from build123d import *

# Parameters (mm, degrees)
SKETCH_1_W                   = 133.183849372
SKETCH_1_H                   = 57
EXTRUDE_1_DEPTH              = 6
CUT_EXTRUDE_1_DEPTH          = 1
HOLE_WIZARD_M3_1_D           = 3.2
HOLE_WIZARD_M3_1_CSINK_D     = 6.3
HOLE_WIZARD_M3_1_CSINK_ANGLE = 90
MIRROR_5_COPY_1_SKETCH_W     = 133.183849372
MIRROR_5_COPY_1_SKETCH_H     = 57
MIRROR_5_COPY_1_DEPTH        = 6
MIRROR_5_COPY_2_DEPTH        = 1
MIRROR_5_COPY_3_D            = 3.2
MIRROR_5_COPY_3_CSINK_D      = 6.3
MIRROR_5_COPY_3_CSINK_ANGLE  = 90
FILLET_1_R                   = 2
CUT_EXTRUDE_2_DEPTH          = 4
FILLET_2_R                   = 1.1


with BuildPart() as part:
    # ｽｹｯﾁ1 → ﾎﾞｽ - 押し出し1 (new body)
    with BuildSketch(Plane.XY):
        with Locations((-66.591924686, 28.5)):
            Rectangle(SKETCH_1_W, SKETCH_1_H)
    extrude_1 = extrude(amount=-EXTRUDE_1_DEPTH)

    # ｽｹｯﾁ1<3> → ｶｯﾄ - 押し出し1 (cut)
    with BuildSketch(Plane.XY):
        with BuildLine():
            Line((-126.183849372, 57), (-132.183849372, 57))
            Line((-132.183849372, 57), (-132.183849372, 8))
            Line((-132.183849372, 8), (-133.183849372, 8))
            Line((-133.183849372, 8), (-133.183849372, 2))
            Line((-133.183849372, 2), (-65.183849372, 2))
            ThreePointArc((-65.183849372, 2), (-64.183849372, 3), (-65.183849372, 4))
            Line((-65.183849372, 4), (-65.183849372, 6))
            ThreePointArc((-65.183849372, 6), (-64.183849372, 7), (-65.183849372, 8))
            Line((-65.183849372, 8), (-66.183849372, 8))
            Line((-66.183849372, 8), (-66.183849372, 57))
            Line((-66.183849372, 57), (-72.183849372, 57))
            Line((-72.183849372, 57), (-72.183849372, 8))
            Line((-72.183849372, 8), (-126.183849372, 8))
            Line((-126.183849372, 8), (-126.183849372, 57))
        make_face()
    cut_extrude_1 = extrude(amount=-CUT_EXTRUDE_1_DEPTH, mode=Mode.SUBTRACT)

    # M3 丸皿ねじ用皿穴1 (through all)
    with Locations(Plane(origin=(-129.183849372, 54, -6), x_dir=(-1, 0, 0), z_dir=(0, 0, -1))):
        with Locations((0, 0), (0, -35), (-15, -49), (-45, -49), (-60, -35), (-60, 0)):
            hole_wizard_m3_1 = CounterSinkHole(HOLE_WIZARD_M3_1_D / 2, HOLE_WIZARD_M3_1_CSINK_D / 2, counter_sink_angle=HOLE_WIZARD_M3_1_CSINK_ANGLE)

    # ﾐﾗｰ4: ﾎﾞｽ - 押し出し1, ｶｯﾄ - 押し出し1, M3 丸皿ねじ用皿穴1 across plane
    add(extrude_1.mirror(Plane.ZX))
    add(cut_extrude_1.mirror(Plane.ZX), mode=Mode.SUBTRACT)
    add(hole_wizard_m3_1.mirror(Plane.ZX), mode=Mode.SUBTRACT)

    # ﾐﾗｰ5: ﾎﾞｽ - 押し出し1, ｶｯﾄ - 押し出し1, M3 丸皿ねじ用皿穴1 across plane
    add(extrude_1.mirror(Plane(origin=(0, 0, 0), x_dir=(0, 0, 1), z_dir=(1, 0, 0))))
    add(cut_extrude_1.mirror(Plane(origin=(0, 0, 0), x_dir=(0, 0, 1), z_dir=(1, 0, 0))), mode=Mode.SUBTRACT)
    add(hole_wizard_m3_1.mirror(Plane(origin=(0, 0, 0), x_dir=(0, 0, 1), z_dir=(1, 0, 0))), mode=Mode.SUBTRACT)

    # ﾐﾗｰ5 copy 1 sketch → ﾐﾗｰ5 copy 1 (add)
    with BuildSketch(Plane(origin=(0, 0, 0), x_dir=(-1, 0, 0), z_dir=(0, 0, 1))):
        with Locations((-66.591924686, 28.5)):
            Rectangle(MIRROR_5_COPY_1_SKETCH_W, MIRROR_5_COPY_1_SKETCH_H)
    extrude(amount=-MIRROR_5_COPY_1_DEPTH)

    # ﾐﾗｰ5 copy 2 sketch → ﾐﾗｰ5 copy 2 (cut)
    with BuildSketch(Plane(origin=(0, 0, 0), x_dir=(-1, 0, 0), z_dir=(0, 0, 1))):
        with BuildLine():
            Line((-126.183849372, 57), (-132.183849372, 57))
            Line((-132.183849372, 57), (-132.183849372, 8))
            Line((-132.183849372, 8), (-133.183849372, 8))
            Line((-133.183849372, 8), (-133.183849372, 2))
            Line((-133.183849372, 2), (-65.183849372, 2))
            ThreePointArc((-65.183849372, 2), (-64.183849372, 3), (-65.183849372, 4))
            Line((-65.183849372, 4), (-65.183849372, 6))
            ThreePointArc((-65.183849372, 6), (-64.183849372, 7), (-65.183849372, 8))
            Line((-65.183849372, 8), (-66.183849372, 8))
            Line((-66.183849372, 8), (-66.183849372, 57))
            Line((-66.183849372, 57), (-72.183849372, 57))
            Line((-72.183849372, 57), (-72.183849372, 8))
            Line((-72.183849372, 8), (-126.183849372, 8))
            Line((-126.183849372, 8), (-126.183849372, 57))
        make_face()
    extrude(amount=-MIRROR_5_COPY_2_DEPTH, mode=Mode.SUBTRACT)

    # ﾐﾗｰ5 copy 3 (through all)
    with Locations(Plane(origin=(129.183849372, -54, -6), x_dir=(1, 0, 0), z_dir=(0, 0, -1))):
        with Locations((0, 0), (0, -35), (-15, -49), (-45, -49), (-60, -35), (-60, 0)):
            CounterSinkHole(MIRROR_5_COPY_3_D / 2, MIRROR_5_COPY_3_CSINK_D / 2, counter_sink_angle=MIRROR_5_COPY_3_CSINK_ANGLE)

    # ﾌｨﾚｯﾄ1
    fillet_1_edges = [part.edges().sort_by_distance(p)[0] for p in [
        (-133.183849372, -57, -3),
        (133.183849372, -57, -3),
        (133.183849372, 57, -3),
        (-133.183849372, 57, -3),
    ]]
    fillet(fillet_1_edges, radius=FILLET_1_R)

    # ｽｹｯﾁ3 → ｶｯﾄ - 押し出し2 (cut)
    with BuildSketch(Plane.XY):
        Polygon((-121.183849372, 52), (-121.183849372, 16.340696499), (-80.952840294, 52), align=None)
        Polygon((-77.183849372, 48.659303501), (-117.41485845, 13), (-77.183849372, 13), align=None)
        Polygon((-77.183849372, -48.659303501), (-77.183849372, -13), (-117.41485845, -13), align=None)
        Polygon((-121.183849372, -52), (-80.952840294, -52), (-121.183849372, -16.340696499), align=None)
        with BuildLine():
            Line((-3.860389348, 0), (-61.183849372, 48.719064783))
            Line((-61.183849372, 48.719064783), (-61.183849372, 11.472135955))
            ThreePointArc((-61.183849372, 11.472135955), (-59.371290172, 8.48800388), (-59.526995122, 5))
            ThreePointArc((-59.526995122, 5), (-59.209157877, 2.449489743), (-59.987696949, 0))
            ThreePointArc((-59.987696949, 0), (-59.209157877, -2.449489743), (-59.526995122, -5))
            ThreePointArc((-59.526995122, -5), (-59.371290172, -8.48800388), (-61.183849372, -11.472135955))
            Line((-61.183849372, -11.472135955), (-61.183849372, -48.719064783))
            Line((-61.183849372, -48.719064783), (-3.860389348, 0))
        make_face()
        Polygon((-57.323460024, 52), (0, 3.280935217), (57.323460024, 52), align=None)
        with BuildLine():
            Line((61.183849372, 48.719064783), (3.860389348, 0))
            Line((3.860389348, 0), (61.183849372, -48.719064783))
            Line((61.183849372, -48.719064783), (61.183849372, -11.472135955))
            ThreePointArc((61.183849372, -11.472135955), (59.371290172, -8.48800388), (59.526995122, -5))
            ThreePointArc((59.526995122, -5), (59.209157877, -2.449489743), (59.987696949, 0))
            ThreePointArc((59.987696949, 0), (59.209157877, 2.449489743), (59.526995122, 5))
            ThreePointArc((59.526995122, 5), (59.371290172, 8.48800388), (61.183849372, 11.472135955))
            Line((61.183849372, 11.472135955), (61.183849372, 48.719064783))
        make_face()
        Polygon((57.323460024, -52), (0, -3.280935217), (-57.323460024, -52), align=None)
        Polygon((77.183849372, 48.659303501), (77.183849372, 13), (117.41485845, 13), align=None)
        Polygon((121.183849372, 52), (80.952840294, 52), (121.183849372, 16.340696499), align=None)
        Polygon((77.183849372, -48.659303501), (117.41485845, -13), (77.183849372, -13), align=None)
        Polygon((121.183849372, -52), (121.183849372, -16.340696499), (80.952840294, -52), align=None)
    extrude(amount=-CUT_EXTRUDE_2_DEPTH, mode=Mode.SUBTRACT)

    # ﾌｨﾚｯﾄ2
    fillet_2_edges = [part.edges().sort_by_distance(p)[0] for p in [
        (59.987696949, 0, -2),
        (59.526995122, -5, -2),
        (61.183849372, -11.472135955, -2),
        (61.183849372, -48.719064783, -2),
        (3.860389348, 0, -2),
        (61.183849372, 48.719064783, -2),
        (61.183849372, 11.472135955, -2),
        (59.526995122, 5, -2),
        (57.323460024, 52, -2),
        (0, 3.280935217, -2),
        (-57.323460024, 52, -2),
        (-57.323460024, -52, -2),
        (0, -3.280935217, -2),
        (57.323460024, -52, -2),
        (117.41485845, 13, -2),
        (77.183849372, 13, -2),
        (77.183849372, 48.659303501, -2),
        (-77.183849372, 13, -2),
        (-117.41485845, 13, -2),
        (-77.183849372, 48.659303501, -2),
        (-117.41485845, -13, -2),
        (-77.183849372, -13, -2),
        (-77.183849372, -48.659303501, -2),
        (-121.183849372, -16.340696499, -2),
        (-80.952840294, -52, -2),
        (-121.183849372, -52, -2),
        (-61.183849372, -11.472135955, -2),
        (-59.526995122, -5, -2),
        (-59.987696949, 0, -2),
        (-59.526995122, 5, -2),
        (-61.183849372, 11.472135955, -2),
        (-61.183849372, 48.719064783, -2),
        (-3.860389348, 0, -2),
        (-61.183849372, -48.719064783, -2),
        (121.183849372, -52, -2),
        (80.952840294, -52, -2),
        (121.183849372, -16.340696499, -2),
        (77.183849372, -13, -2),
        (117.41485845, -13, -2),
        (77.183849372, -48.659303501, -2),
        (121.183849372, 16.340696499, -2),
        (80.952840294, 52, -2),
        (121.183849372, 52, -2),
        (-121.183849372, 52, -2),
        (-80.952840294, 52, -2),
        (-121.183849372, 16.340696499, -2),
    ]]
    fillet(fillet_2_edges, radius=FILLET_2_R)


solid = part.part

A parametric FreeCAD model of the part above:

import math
import FreeCAD as App
import Part
import Sketcher

V = App.Vector


def edges_at(feature, points):
    """Names of the edges that pass closest to the given points."""
    edges = feature.Shape.Edges
    near = lambda p: min(range(len(edges)), key=lambda i: edges[i].distToShape(Part.Vertex(*p))[0])
    return sorted({f"Edge{near(p) + 1}" for p in points})

doc = App.newDocument("Part")
body = doc.addObject("PartDesign::Body", "Body")

sketch1 = body.newObject("Sketcher::SketchObject", "Sketch")
sketch1.AttachmentSupport = (doc.getObject("XY_Plane"), [""])
sketch1.MapMode = "FlatFace"
sketch1.addGeometry([
    Part.LineSegment(V(-133, 57, 0), V(-133, 0, 0)),
    Part.LineSegment(V(-133, 0, 0), V(0, 0, 0)),
    Part.LineSegment(V(0, 0, 0), V(0, 57, 0)),
    Part.LineSegment(V(0, 57, 0), V(-133, 57, 0)),
], False)
sketch1.addConstraint([
    Sketcher.Constraint("Coincident", 0, 2, 1, 1),
    Sketcher.Constraint("Coincident", 1, 2, 2, 1),
    Sketcher.Constraint("Coincident", 2, 2, 3, 1),
    Sketcher.Constraint("Coincident", 3, 2, 0, 1),
    Sketcher.Constraint("Vertical", 0),
    Sketcher.Constraint("Horizontal", 1),
    Sketcher.Constraint("Vertical", 2),
    Sketcher.Constraint("Horizontal", 3),
    Sketcher.Constraint("Coincident", 1, 2, -1, 1),
    Sketcher.Constraint("DistanceY", 0, 2, 0, 1, 57.0),
    Sketcher.Constraint("DistanceX", 1, 1, 1, 2, 133.183849),
])
pad1 = body.newObject("PartDesign::Pad", "Pad")
pad1.Profile = sketch1
pad1.Length = 6
pad1.Reversed = True

sketch2 = body.newObject("Sketcher::SketchObject", "Sketch001")
sketch2.AttachmentSupport = (doc.getObject("XY_Plane"), [""])
sketch2.MapMode = "FlatFace"
sketch2.addGeometry([
    Part.LineSegment(V(-126.2, 57, 0), V(-132.2, 57, 0)),
    Part.LineSegment(V(-132.2, 57, 0), V(-132.2, 8, 0)),
    Part.LineSegment(V(-132.2, 8, 0), V(-133.2, 8, 0)),
    Part.LineSegment(V(-133.2, 8, 0), V(-133.2, 2, 0)),
    Part.LineSegment(V(-133.2, 2, 0), V(-65.2, 2, 0)),
    Part.ArcOfCircle(Part.Circle(V(-65.2, 3, 0), V(0, 0, 1), 1), math.radians(-90), math.radians(90)),
    Part.LineSegment(V(-65.2, 4, 0), V(-65.2, 6, 0)),
    Part.ArcOfCircle(Part.Circle(V(-65.2, 7, 0), V(0, 0, 1), 1), math.radians(-90), math.radians(90)),
    Part.LineSegment(V(-65.2, 8, 0), V(-66.2, 8, 0)),
    Part.LineSegment(V(-66.2, 8, 0), V(-66.2, 57, 0)),
    Part.LineSegment(V(-66.2, 57, 0), V(-72.2, 57, 0)),
    Part.LineSegment(V(-72.2, 57, 0), V(-72.2, 8, 0)),
    Part.LineSegment(V(-72.2, 8, 0), V(-126.2, 8, 0)),
    Part.LineSegment(V(-126.2, 8, 0), V(-126.2, 57, 0)),
], False)
sketch2.addConstraint([
    Sketcher.Constraint("Coincident", 0, 2, 1, 1),
    Sketcher.Constraint("Coincident", 1, 2, 2, 1),
    Sketcher.Constraint("Coincident", 2, 2, 3, 1),
    Sketcher.Constraint("Coincident", 3, 2, 4, 1),
    Sketcher.Constraint("Tangent", 4, 2, 5, 1),
    Sketcher.Constraint("Coincident", 5, 2, 6, 1),
    Sketcher.Constraint("Coincident", 6, 2, 7, 1),
    Sketcher.Constraint("Tangent", 7, 2, 8, 1),
    Sketcher.Constraint("Coincident", 8, 2, 9, 1),
    Sketcher.Constraint("Coincident", 9, 2, 10, 1),
    Sketcher.Constraint("Coincident", 10, 2, 11, 1),
    Sketcher.Constraint("Coincident", 11, 2, 12, 1),
    Sketcher.Constraint("Coincident", 12, 2, 13, 1),
    Sketcher.Constraint("Coincident", 13, 2, 0, 1),
    Sketcher.Constraint("Horizontal", 0),
    Sketcher.Constraint("Vertical", 1),
    Sketcher.Constraint("Horizontal", 2),
    Sketcher.Constraint("Vertical", 3),
    Sketcher.Constraint("Horizontal", 4),
    Sketcher.Constraint("Vertical", 6),
    Sketcher.Constraint("Horizontal", 8),
    Sketcher.Constraint("Vertical", 9),
    Sketcher.Constraint("Horizontal", 10),
    Sketcher.Constraint("Vertical", 11),
    Sketcher.Constraint("Horizontal", 12),
    Sketcher.Constraint("Vertical", 13),
    Sketcher.Constraint("Equal", 5, 7),
    Sketcher.Constraint("Horizontal", 2, 2, 7, 2),
    Sketcher.Constraint("Horizontal", 0, 2, 9, 2),
    Sketcher.Constraint("Horizontal", 8, 2, 11, 2),
    Sketcher.Constraint("Vertical", 5, 3, 7, 3),
    Sketcher.Constraint("Vertical", 4, 2, 5, 2),
    Sketcher.Constraint("Equal", 2, 8),
    Sketcher.Constraint("Equal", 0, 10),
    Sketcher.Constraint("Equal", 10, 3),
    Sketcher.Constraint("Radius", 5, 1.0),
    Sketcher.Constraint("DistanceX", 0, 2, 0, 1, 6.0),
    Sketcher.Constraint("DistanceX", 2, 2, 2, 1, 1.0),
    Sketcher.Constraint("DistanceX", 4, 1, 4, 2, 68.0),
    Sketcher.Constraint("DistanceY", 1, 2, 1, 1, 49.0),
    Sketcher.Constraint("DistanceY", -1, 1, 5, 3, 3.0),
    Sketcher.Constraint("DistanceX", 5, 3, -1, 1, 65.183849),
])
pocket1 = body.newObject("PartDesign::Pocket", "Pocket")
pocket1.Profile = sketch2
pocket1.Length = 1

sketch3 = body.newObject("Sketcher::SketchObject", "Sketch002")
sketch3.AttachmentSupport = (doc.getObject("XY_Plane"), [""])
sketch3.MapMode = "FlatFace"
sketch3.AttachmentOffset = App.Placement(V(0, 0, -6), App.Rotation())
sketch3.addGeometry([
    Part.Circle(V(-129.2, 54, 0), V(0, 0, 1), 1.6),
    Part.Circle(V(-129.2, 19, 0), V(0, 0, 1), 1.6),
    Part.Circle(V(-114.2, 5, 0), V(0, 0, 1), 1.6),
    Part.Circle(V(-84.2, 5, 0), V(0, 0, 1), 1.6),
    Part.Circle(V(-69.2, 19, 0), V(0, 0, 1), 1.6),
    Part.Circle(V(-69.2, 54, 0), V(0, 0, 1), 1.6),
], False)
sketch3.addConstraint([
    Sketcher.Constraint("Equal", 0, 1),
    Sketcher.Constraint("Equal", 1, 2),
    Sketcher.Constraint("Equal", 2, 3),
    Sketcher.Constraint("Equal", 3, 4),
    Sketcher.Constraint("Equal", 4, 5),
    Sketcher.Constraint("Horizontal", 2, 3, 3, 3),
    Sketcher.Constraint("Horizontal", 1, 3, 4, 3),
    Sketcher.Constraint("Horizontal", 0, 3, 5, 3),
    Sketcher.Constraint("Vertical", 0, 3, 1, 3),
    Sketcher.Constraint("Vertical", 4, 3, 5, 3),
    Sketcher.Constraint("Diameter", 0, 3.2),
    Sketcher.Constraint("DistanceY", -1, 1, 0, 3, 54.0),
    Sketcher.Constraint("DistanceY", -1, 1, 1, 3, 19.0),
    Sketcher.Constraint("DistanceY", -1, 1, 2, 3, 5.0),
    Sketcher.Constraint("DistanceX", 1, 3, 2, 3, 15.0),
    Sketcher.Constraint("DistanceX", 2, 3, 3, 3, 30.0),
    Sketcher.Constraint("DistanceX", 3, 3, 4, 3, 15.0),
    Sketcher.Constraint("DistanceX", 0, 3, -1, 1, 129.183849),
])
doc.recompute()
hole = body.newObject("PartDesign::Hole", "Hole")
hole.Profile = sketch3
hole.ThreadType = "None"
hole.Diameter = 3.2
hole.DepthType = "ThroughAll"
hole.HoleCutType = "Countersink"
hole.HoleCutDiameter = 6.3
hole.HoleCutCountersinkAngle = 90
hole.Reversed = True
doc.recompute()

mirrored = body.newObject("PartDesign::Mirrored", "Mirrored")
mirrored.Originals = [pad1, pocket1, hole]
mirrored.MirrorPlane = (doc.getObject("XZ_Plane"), [""])
body.Tip = mirrored
doc.recompute()

mirrored2 = body.newObject("PartDesign::Mirrored", "Mirrored001")
mirrored2.Originals = [pad1, pocket1, hole]
mirrored2.MirrorPlane = (doc.getObject("YZ_Plane"), [""])
body.Tip = mirrored2

sketch4 = body.newObject("Sketcher::SketchObject", "Sketch003")
sketch4.AttachmentSupport = (doc.getObject("XY_Plane"), [""])
sketch4.MapMode = "FlatFace"
sketch4.addGeometry([
    Part.LineSegment(V(133, -57, 0), V(133, 0, 0)),
    Part.LineSegment(V(133, 0, 0), V(0, 0, 0)),
    Part.LineSegment(V(0, 0, 0), V(0, -57, 0)),
    Part.LineSegment(V(0, -57, 0), V(133, -57, 0)),
], False)
sketch4.addConstraint([
    Sketcher.Constraint("Coincident", 0, 2, 1, 1),
    Sketcher.Constraint("Coincident", 1, 2, 2, 1),
    Sketcher.Constraint("Coincident", 2, 2, 3, 1),
    Sketcher.Constraint("Coincident", 3, 2, 0, 1),
    Sketcher.Constraint("Vertical", 0),
    Sketcher.Constraint("Horizontal", 1),
    Sketcher.Constraint("Vertical", 2),
    Sketcher.Constraint("Horizontal", 3),
    Sketcher.Constraint("Coincident", 1, 2, -1, 1),
    Sketcher.Constraint("DistanceY", 0, 1, 0, 2, 57.0),
    Sketcher.Constraint("DistanceX", 1, 2, 1, 1, 133.183849),
])
pad2 = body.newObject("PartDesign::Pad", "Pad001")
pad2.Profile = sketch4
pad2.Length = 6
pad2.Reversed = True

sketch5 = body.newObject("Sketcher::SketchObject", "Sketch004")
sketch5.AttachmentSupport = (doc.getObject("XY_Plane"), [""])
sketch5.MapMode = "FlatFace"
sketch5.addGeometry([
    Part.LineSegment(V(126.2, -57, 0), V(132.2, -57, 0)),
    Part.LineSegment(V(132.2, -57, 0), V(132.2, -8, 0)),
    Part.LineSegment(V(132.2, -8, 0), V(133.2, -8, 0)),
    Part.LineSegment(V(133.2, -8, 0), V(133.2, -2, 0)),
    Part.LineSegment(V(133.2, -2, 0), V(65.2, -2, 0)),
    Part.ArcOfCircle(Part.Circle(V(65.2, -3, 0), V(0, 0, 1), 1), math.radians(90), math.radians(270)),
    Part.LineSegment(V(65.2, -4, 0), V(65.2, -6, 0)),
    Part.ArcOfCircle(Part.Circle(V(65.2, -7, 0), V(0, 0, 1), 1), math.radians(90), math.radians(270)),
    Part.LineSegment(V(65.2, -8, 0), V(66.2, -8, 0)),
    Part.LineSegment(V(66.2, -8, 0), V(66.2, -57, 0)),
    Part.LineSegment(V(66.2, -57, 0), V(72.2, -57, 0)),
    Part.LineSegment(V(72.2, -57, 0), V(72.2, -8, 0)),
    Part.LineSegment(V(72.2, -8, 0), V(126.2, -8, 0)),
    Part.LineSegment(V(126.2, -8, 0), V(126.2, -57, 0)),
], False)
sketch5.addConstraint([
    Sketcher.Constraint("Coincident", 0, 2, 1, 1),
    Sketcher.Constraint("Coincident", 1, 2, 2, 1),
    Sketcher.Constraint("Coincident", 2, 2, 3, 1),
    Sketcher.Constraint("Coincident", 3, 2, 4, 1),
    Sketcher.Constraint("Tangent", 4, 2, 5, 1),
    Sketcher.Constraint("Coincident", 5, 2, 6, 1),
    Sketcher.Constraint("Coincident", 6, 2, 7, 1),
    Sketcher.Constraint("Tangent", 7, 2, 8, 1),
    Sketcher.Constraint("Coincident", 8, 2, 9, 1),
    Sketcher.Constraint("Coincident", 9, 2, 10, 1),
    Sketcher.Constraint("Coincident", 10, 2, 11, 1),
    Sketcher.Constraint("Coincident", 11, 2, 12, 1),
    Sketcher.Constraint("Coincident", 12, 2, 13, 1),
    Sketcher.Constraint("Coincident", 13, 2, 0, 1),
    Sketcher.Constraint("Horizontal", 0),
    Sketcher.Constraint("Vertical", 1),
    Sketcher.Constraint("Horizontal", 2),
    Sketcher.Constraint("Vertical", 3),
    Sketcher.Constraint("Horizontal", 4),
    Sketcher.Constraint("Vertical", 6),
    Sketcher.Constraint("Horizontal", 8),
    Sketcher.Constraint("Vertical", 9),
    Sketcher.Constraint("Horizontal", 10),
    Sketcher.Constraint("Vertical", 11),
    Sketcher.Constraint("Horizontal", 12),
    Sketcher.Constraint("Vertical", 13),
    Sketcher.Constraint("Equal", 5, 7),
    Sketcher.Constraint("Horizontal", 2, 2, 7, 2),
    Sketcher.Constraint("Horizontal", 0, 2, 9, 2),
    Sketcher.Constraint("Horizontal", 8, 2, 11, 2),
    Sketcher.Constraint("Vertical", 5, 3, 7, 3),
    Sketcher.Constraint("Vertical", 4, 2, 5, 2),
    Sketcher.Constraint("Equal", 2, 8),
    Sketcher.Constraint("Equal", 0, 10),
    Sketcher.Constraint("Equal", 10, 3),
    Sketcher.Constraint("Radius", 5, 1.0),
    Sketcher.Constraint("DistanceX", 0, 1, 0, 2, 6.0),
    Sketcher.Constraint("DistanceX", 2, 1, 2, 2, 1.0),
    Sketcher.Constraint("DistanceX", 4, 2, 4, 1, 68.0),
    Sketcher.Constraint("DistanceY", 1, 1, 1, 2, 49.0),
    Sketcher.Constraint("DistanceY", 5, 3, -1, 1, 3.0),
    Sketcher.Constraint("DistanceX", -1, 1, 5, 3, 65.183849),
])
pocket2 = body.newObject("PartDesign::Pocket", "Pocket001")
pocket2.Profile = sketch5
pocket2.Length = 1

sketch6 = body.newObject("Sketcher::SketchObject", "Sketch005")
sketch6.AttachmentSupport = (doc.getObject("XY_Plane"), [""])
sketch6.MapMode = "FlatFace"
sketch6.AttachmentOffset = App.Placement(V(0, 0, -6), App.Rotation())
sketch6.addGeometry([
    Part.Circle(V(129.2, -54, 0), V(0, 0, 1), 1.6),
    Part.Circle(V(129.2, -19, 0), V(0, 0, 1), 1.6),
    Part.Circle(V(114.2, -5, 0), V(0, 0, 1), 1.6),
    Part.Circle(V(84.2, -5, 0), V(0, 0, 1), 1.6),
    Part.Circle(V(69.2, -19, 0), V(0, 0, 1), 1.6),
    Part.Circle(V(69.2, -54, 0), V(0, 0, 1), 1.6),
], False)
sketch6.addConstraint([
    Sketcher.Constraint("Equal", 0, 1),
    Sketcher.Constraint("Equal", 1, 2),
    Sketcher.Constraint("Equal", 2, 3),
    Sketcher.Constraint("Equal", 3, 4),
    Sketcher.Constraint("Equal", 4, 5),
    Sketcher.Constraint("Horizontal", 2, 3, 3, 3),
    Sketcher.Constraint("Horizontal", 1, 3, 4, 3),
    Sketcher.Constraint("Horizontal", 0, 3, 5, 3),
    Sketcher.Constraint("Vertical", 0, 3, 1, 3),
    Sketcher.Constraint("Vertical", 4, 3, 5, 3),
    Sketcher.Constraint("Diameter", 0, 3.2),
    Sketcher.Constraint("DistanceY", 0, 3, -1, 1, 54.0),
    Sketcher.Constraint("DistanceY", 1, 3, -1, 1, 19.0),
    Sketcher.Constraint("DistanceY", 2, 3, -1, 1, 5.0),
    Sketcher.Constraint("DistanceX", 2, 3, 1, 3, 15.0),
    Sketcher.Constraint("DistanceX", 3, 3, 2, 3, 30.0),
    Sketcher.Constraint("DistanceX", 4, 3, 3, 3, 15.0),
    Sketcher.Constraint("DistanceX", -1, 1, 0, 3, 129.183849),
])
doc.recompute()
hole2 = body.newObject("PartDesign::Hole", "Hole001")
hole2.Profile = sketch6
hole2.ThreadType = "None"
hole2.Diameter = 3.2
hole2.DepthType = "ThroughAll"
hole2.HoleCutType = "Countersink"
hole2.HoleCutDiameter = 6.3
hole2.HoleCutCountersinkAngle = 90
hole2.Reversed = True
doc.recompute()

fillet = body.newObject("PartDesign::Fillet", "Fillet")
fillet.Base = (hole2, edges_at(hole2, [
    (-133.184, -57, -3),
    (133.184, -57, -3),
    (133.184, 57, -3),
    (-133.184, 57, -3),
]))
fillet.Radius = 2

sketch7 = body.newObject("Sketcher::SketchObject", "Sketch006")
sketch7.AttachmentSupport = (doc.getObject("XY_Plane"), [""])
sketch7.MapMode = "FlatFace"
sketch7.addGeometry([
    Part.LineSegment(V(-121, 52, 0), V(-121, 16, 0)),
    Part.LineSegment(V(-121, 16, 0), V(-81, 52, 0)),
    Part.LineSegment(V(-81, 52, 0), V(-121, 52, 0)),
    Part.LineSegment(V(-77, 49, 0), V(-117, 13, 0)),
    Part.LineSegment(V(-117, 13, 0), V(-77, 13, 0)),
    Part.LineSegment(V(-77, 13, 0), V(-77, 49, 0)),
    Part.LineSegment(V(-77, -49, 0), V(-77, -13, 0)),
    Part.LineSegment(V(-77, -13, 0), V(-117, -13, 0)),
    Part.LineSegment(V(-117, -13, 0), V(-77, -49, 0)),
    Part.LineSegment(V(-121, -52, 0), V(-81, -52, 0)),
    Part.LineSegment(V(-81, -52, 0), V(-121, -16, 0)),
    Part.LineSegment(V(-121, -16, 0), V(-121, -52, 0)),
    Part.LineSegment(V(-4, 0, 0), V(-61, 49, 0)),
    Part.LineSegment(V(-61, 49, 0), V(-61, 11, 0)),
    Part.ArcOfCircle(Part.Circle(V(-65, 7, 0), V(0, 0, 1), 6), math.radians(-19), math.radians(48)),
    Part.ArcOfCircle(Part.Circle(V(-65, 3, 0), V(0, 0, 1), 6), math.radians(-30), math.radians(19)),
    Part.ArcOfCircle(Part.Circle(V(-65, -3, 0), V(0, 0, 1), 6), math.radians(-19), math.radians(30)),
    Part.ArcOfCircle(Part.Circle(V(-65, -7, 0), V(0, 0, 1), 6), math.radians(-48), math.radians(19)),
    Part.LineSegment(V(-61, -11, 0), V(-61, -49, 0)),
    Part.LineSegment(V(-61, -49, 0), V(-4, 0, 0)),
    Part.LineSegment(V(-57, 52, 0), V(0, 3, 0)),
    Part.LineSegment(V(0, 3, 0), V(57, 52, 0)),
    Part.LineSegment(V(57, 52, 0), V(-57, 52, 0)),
    Part.LineSegment(V(61, 49, 0), V(4, 0, 0)),
    Part.LineSegment(V(4, 0, 0), V(61, -49, 0)),
    Part.LineSegment(V(61, -49, 0), V(61, -11, 0)),
    Part.ArcOfCircle(Part.Circle(V(65, -7, 0), V(0, 0, 1), 6), math.radians(161), math.radians(228)),
    Part.ArcOfCircle(Part.Circle(V(65, -3, 0), V(0, 0, 1), 6), math.radians(150), math.radians(199)),
    Part.ArcOfCircle(Part.Circle(V(65, 3, 0), V(0, 0, 1), 6), math.radians(161), math.radians(210)),
    Part.ArcOfCircle(Part.Circle(V(65, 7, 0), V(0, 0, 1), 6), math.radians(132), math.radians(199)),
    Part.LineSegment(V(61, 11, 0), V(61, 49, 0)),
    Part.LineSegment(V(57, -52, 0), V(0, -3, 0)),
    Part.LineSegment(V(0, -3, 0), V(-57, -52, 0)),
    Part.LineSegment(V(-57, -52, 0), V(57, -52, 0)),
    Part.LineSegment(V(77, 49, 0), V(77, 13, 0)),
    Part.LineSegment(V(77, 13, 0), V(117, 13, 0)),
    Part.LineSegment(V(117, 13, 0), V(77, 49, 0)),
    Part.LineSegment(V(121, 52, 0), V(81, 52, 0)),
    Part.LineSegment(V(81, 52, 0), V(121, 16, 0)),
    Part.LineSegment(V(121, 16, 0), V(121, 52, 0)),
    Part.LineSegment(V(77, -49, 0), V(117, -13, 0)),
    Part.LineSegment(V(117, -13, 0), V(77, -13, 0)),
    Part.LineSegment(V(77, -13, 0), V(77, -49, 0)),
    Part.LineSegment(V(121, -52, 0), V(121, -16, 0)),
    Part.LineSegment(V(121, -16, 0), V(81, -52, 0)),
    Part.LineSegment(V(81, -52, 0), V(121, -52, 0)),
], False)
sketch7.addConstraint([
    Sketcher.Constraint("Coincident", 0, 2, 1, 1),
    Sketcher.Constraint("Coincident", 1, 2, 2, 1),
    Sketcher.Constraint("Coincident", 2, 2, 0, 1),
    Sketcher.Constraint("Coincident", 3, 2, 4, 1),
    Sketcher.Constraint("Coincident", 4, 2, 5, 1),
    Sketcher.Constraint("Coincident", 5, 2, 3, 1),
    Sketcher.Constraint("Coincident", 6, 2, 7, 1),
    Sketcher.Constraint("Coincident", 7, 2, 8, 1),
    Sketcher.Constraint("Coincident", 8, 2, 6, 1),
    Sketcher.Constraint("Coincident", 9, 2, 10, 1),
    Sketcher.Constraint("Coincident", 10, 2, 11, 1),
    Sketcher.Constraint("Coincident", 11, 2, 9, 1),
    Sketcher.Constraint("Coincident", 12, 2, 13, 1),
    Sketcher.Constraint("Coincident", 13, 2, 14, 2),
    Sketcher.Constraint("Coincident", 14, 1, 15, 2),
    Sketcher.Constraint("Coincident", 15, 1, 16, 2),
    Sketcher.Constraint("Coincident", 16, 1, 17, 2),
    Sketcher.Constraint("Coincident", 17, 1, 18, 1),
    Sketcher.Constraint("Coincident", 18, 2, 19, 1),
    Sketcher.Constraint("Coincident", 19, 2, 12, 1),
    Sketcher.Constraint("Coincident", 20, 2, 21, 1),
    Sketcher.Constraint("Coincident", 21, 2, 22, 1),
    Sketcher.Constraint("Coincident", 22, 2, 20, 1),
    Sketcher.Constraint("Coincident", 23, 2, 24, 1),
    Sketcher.Constraint("Coincident", 24, 2, 25, 1),
    Sketcher.Constraint("Coincident", 25, 2, 26, 2),
    Sketcher.Constraint("Coincident", 26, 1, 27, 2),
    Sketcher.Constraint("Coincident", 27, 1, 28, 2),
    Sketcher.Constraint("Coincident", 28, 1, 29, 2),
    Sketcher.Constraint("Coincident", 29, 1, 30, 1),
    Sketcher.Constraint("Coincident", 30, 2, 23, 1),
    Sketcher.Constraint("Coincident", 31, 2, 32, 1),
    Sketcher.Constraint("Coincident", 32, 2, 33, 1),
    Sketcher.Constraint("Coincident", 33, 2, 31, 1),
    Sketcher.Constraint("Coincident", 34, 2, 35, 1),
    Sketcher.Constraint("Coincident", 35, 2, 36, 1),
    Sketcher.Constraint("Coincident", 36, 2, 34, 1),
    Sketcher.Constraint("Coincident", 37, 2, 38, 1),
    Sketcher.Constraint("Coincident", 38, 2, 39, 1),
    Sketcher.Constraint("Coincident", 39, 2, 37, 1),
    Sketcher.Constraint("Coincident", 40, 2, 41, 1),
    Sketcher.Constraint("Coincident", 41, 2, 42, 1),
    Sketcher.Constraint("Coincident", 42, 2, 40, 1),
    Sketcher.Constraint("Coincident", 43, 2, 44, 1),
    Sketcher.Constraint("Coincident", 44, 2, 45, 1),
    Sketcher.Constraint("Coincident", 45, 2, 43, 1),
    Sketcher.Constraint("Vertical", 0),
    Sketcher.Constraint("Horizontal", 2),
    Sketcher.Constraint("Horizontal", 4),
    Sketcher.Constraint("Vertical", 5),
    Sketcher.Constraint("Vertical", 6),
    Sketcher.Constraint("Horizontal", 7),
    Sketcher.Constraint("Horizontal", 9),
    Sketcher.Constraint("Vertical", 11),
    Sketcher.Constraint("Vertical", 13),
    Sketcher.Constraint("Vertical", 18),
    Sketcher.Constraint("Horizontal", 22),
    Sketcher.Constraint("Vertical", 25),
    Sketcher.Constraint("Vertical", 30),
    Sketcher.Constraint("Horizontal", 33),
    Sketcher.Constraint("Vertical", 34),
    Sketcher.Constraint("Horizontal", 35),
    Sketcher.Constraint("Horizontal", 37),
    Sketcher.Constraint("Vertical", 39),
    Sketcher.Constraint("Horizontal", 41),
    Sketcher.Constraint("Vertical", 42),
    Sketcher.Constraint("Vertical", 43),
    Sketcher.Constraint("Horizontal", 45),
    Sketcher.Constraint("Equal", 14, 15),
    Sketcher.Constraint("Equal", 15, 16),
    Sketcher.Constraint("Equal", 16, 17),
    Sketcher.Constraint("Equal", 17, 26),
    Sketcher.Constraint("Equal", 26, 27),
    Sketcher.Constraint("Equal", 27, 28),
    Sketcher.Constraint("Equal", 28, 29),
    Sketcher.Constraint("Symmetric", 14, 3, 26, 3, -1, 1),
    Sketcher.Constraint("Symmetric", 15, 3, 27, 3, -1, 1),
    Sketcher.Constraint("Symmetric", 16, 3, 28, 3, -1, 1),
    Sketcher.Constraint("Symmetric", 17, 3, 29, 3, -1, 1),
    Sketcher.Constraint("Symmetric", 19, 2, 23, 2, -1, 1),
    Sketcher.Constraint("Symmetric", 12, 2, 24, 2, -1, 1),
    Sketcher.Constraint("Symmetric", 18, 2, 30, 2, -1, 1),
    Sketcher.Constraint("Symmetric", 20, 2, 31, 2, -1, 1),
    Sketcher.Constraint("Symmetric", 21, 2, 32, 2, -1, 1),
    Sketcher.Constraint("Symmetric", 6, 2, 34, 2, -1, 1),
    Sketcher.Constraint("Symmetric", 9, 2, 37, 2, -1, 1),
    Sketcher.Constraint("Symmetric", 10, 2, 38, 2, -1, 1),
    Sketcher.Constraint("Symmetric", 3, 2, 40, 2, -1, 1),
    Sketcher.Constraint("Symmetric", 5, 2, 42, 2, -1, 1),
    Sketcher.Constraint("Symmetric", 0, 2, 43, 2, -1, 1),
    Sketcher.Constraint("Symmetric", 1, 2, 44, 2, -1, 1),
    Sketcher.Constraint("Symmetric", 17, 3, 26, 3, -2),
    Sketcher.Constraint("Symmetric", 16, 3, 27, 3, -2),
    Sketcher.Constraint("Symmetric", 18, 2, 24, 2, -2),
    Sketcher.Constraint("Symmetric", 4, 2, 34, 2, -2),
    Sketcher.Constraint("Symmetric", 1, 2, 37, 2, -2),
    Sketcher.Constraint("Symmetric", 0, 2, 38, 2, -2),
    Sketcher.Constraint("PointOnObject", 19, 2, -1),
    Sketcher.Constraint("PointOnObject", 20, 2, -2),
    Sketcher.Constraint("Parallel", 1, 3),
    Sketcher.Constraint("Parallel", 8, 10),
    Sketcher.Constraint("Parallel", 12, 20),
    Sketcher.Constraint("Parallel", 19, 21),
    Sketcher.Constraint("Parallel", 24, 31),
    Sketcher.Constraint("Parallel", 10, 36),
    Sketcher.Constraint("Horizontal", 2, 2, 21, 2),
    Sketcher.Constraint("Horizontal", 5, 2, 36, 2),
    Sketcher.Constraint("Horizontal", 8, 2, 42, 2),
    Sketcher.Constraint("Vertical", 14, 3, 15, 3),
    Sketcher.Constraint("Equal", 2, 4),
    Sketcher.Constraint("Equal", 19, 20),
    Sketcher.Constraint("Radius", 14, 6.0),
    Sketcher.Constraint("DistanceY", -1, 1, 14, 3, 7.0),
    Sketcher.Constraint("DistanceY", -1, 1, 15, 3, 3.0),
    Sketcher.Constraint("DistanceY", -1, 1, 1, 2, 52.0),
    Sketcher.Constraint("DistanceY", -1, 1, 3, 2, 13.0),
    Sketcher.Constraint("DistanceX", 0, 2, 14, 3, 56.0),
    Sketcher.Constraint("DistanceX", 4, 2, 14, 3, 12.0),
    Sketcher.Constraint("DistanceX", 5, 2, 12, 2, 16.0),
    Sketcher.Constraint("DistanceX", 2, 2, 2, 1, 40.231009),
    Sketcher.Constraint("DistanceX", 22, 2, 22, 1, 114.64692),
    Sketcher.Constraint("DistanceY", 13, 2, 13, 1, 37.246929),
    Sketcher.Constraint("DistanceX", 17, 3, 26, 3, 130.367699),
    Sketcher.Constraint("DistanceY", 0, 2, 0, 1, 35.659304),
])
pocket3 = body.newObject("PartDesign::Pocket", "Pocket002")
pocket3.Profile = sketch7
pocket3.Length = 4
doc.recompute()

fillet2 = body.newObject("PartDesign::Fillet", "Fillet001")
fillet2.Base = (pocket3, edges_at(pocket3, [
    (59.988, 0, -2),
    (59.527, -5, -2),
    (61.184, -11.472, -2),
    (61.184, -48.719, -2),
    (3.86, 0, -2),
    (61.184, 48.719, -2),
    (61.184, 11.472, -2),
    (59.527, 5, -2),
    (57.323, 52, -2),
    (0, 3.281, -2),
    (-57.323, 52, -2),
    (-57.323, -52, -2),
    (0, -3.281, -2),
    (57.323, -52, -2),
    (117.415, 13, -2),
    (77.184, 13, -2),
    (77.184, 48.659, -2),
    (-77.184, 13, -2),
    (-117.415, 13, -2),
    (-77.184, 48.659, -2),
    (-117.415, -13, -2),
    (-77.184, -13, -2),
    (-77.184, -48.659, -2),
    (-121.184, -16.341, -2),
    (-80.953, -52, -2),
    (-121.184, -52, -2),
    (-61.184, -11.472, -2),
    (-59.527, -5, -2),
    (-59.988, 0, -2),
    (-59.527, 5, -2),
    (-61.184, 11.472, -2),
    (-61.184, 48.719, -2),
    (-3.86, 0, -2),
    (-61.184, -48.719, -2),
    (121.184, -52, -2),
    (80.953, -52, -2),
    (121.184, -16.341, -2),
    (77.184, -13, -2),
    (117.415, -13, -2),
    (77.184, -48.659, -2),
    (121.184, 16.341, -2),
    (80.953, 52, -2),
    (121.184, 52, -2),
    (-121.184, 52, -2),
    (-80.953, 52, -2),
    (-121.184, 16.341, -2),
]))
fillet2.Radius = 1.1

doc.recompute()
